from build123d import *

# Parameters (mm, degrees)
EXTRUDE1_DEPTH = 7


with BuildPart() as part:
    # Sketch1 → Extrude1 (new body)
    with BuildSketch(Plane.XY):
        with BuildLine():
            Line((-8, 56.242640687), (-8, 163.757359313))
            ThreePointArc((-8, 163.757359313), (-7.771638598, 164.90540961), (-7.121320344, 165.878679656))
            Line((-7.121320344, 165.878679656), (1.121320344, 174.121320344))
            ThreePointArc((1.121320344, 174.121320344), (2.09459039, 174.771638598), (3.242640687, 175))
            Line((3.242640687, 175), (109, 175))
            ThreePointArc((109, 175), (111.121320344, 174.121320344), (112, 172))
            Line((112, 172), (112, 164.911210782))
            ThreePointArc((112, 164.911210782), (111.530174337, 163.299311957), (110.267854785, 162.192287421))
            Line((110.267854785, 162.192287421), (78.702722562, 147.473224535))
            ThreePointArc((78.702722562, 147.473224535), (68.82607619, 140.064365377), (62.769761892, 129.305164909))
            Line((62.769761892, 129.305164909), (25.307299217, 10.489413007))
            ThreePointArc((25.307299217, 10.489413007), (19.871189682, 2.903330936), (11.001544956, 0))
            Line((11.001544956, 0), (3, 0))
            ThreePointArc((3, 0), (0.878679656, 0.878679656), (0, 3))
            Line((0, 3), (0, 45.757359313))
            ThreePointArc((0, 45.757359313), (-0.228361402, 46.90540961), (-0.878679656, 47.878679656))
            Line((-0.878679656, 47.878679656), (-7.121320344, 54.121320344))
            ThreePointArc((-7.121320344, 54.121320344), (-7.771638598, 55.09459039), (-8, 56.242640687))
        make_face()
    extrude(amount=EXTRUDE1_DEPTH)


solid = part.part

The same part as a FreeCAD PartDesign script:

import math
import FreeCAD as App
import Part
import Sketcher
Q = App.Units.Quantity

doc = App.newDocument("Part")
body = doc.addObject("PartDesign::Body", "Body")

sketch1 = body.newObject("Sketcher::SketchObject", "Sketch")
sketch1.AttachmentSupport = (doc.getObject("XY_Plane"), [""])
sketch1.MapMode = "FlatFace"
sketch1.addGeometry(Part.LineSegment(App.Vector(-8, 163.8, 0), App.Vector(-8, 56.2, 0)), False)
sketch1.addGeometry(Part.ArcOfCircle(Part.Circle(App.Vector(-5, 56.2, 0), App.Vector(0, 0, 1), 3), math.radians(180), math.radians(225)), False)
sketch1.addGeometry(Part.LineSegment(App.Vector(-7.1, 54.1, 0), App.Vector(-0.9, 47.9, 0)), False)
sketch1.addGeometry(Part.ArcOfCircle(Part.Circle(App.Vector(-3, 45.8, 0), App.Vector(0, 0, 1), 3), math.radians(0), math.radians(45)), False)
sketch1.addGeometry(Part.LineSegment(App.Vector(0, 45.8, 0), App.Vector(0, 3, 0)), False)
sketch1.addGeometry(Part.ArcOfCircle(Part.Circle(App.Vector(3, 3, 0), App.Vector(0, 0, 1), 3), math.radians(180), math.radians(270)), False)
sketch1.addGeometry(Part.LineSegment(App.Vector(3, 0, 0), App.Vector(11, 0, 0)), False)
sketch1.addGeometry(Part.ArcOfCircle(Part.Circle(App.Vector(11, 15, 0), App.Vector(0, 0, 1), 15), math.radians(-90), math.radians(-17)), False)
sketch1.addGeometry(Part.LineSegment(App.Vector(25.3, 10.5, 0), App.Vector(62.8, 129.3, 0)), False)
sketch1.addGeometry(Part.ArcOfCircle(Part.Circle(App.Vector(91.4, 120.3, 0), App.Vector(0, 0, 1), 30), math.radians(115), math.radians(163)), False)
sketch1.addGeometry(Part.LineSegment(App.Vector(78.7, 147.5, 0), App.Vector(110.3, 162.2, 0)), False)
sketch1.addGeometry(Part.ArcOfCircle(Part.Circle(App.Vector(109, 164.9, 0), App.Vector(0, 0, 1), 3), math.radians(-65), math.radians(0)), False)
sketch1.addGeometry(Part.LineSegment(App.Vector(112, 164.9, 0), App.Vector(112, 172, 0)), False)
sketch1.addGeometry(Part.ArcOfCircle(Part.Circle(App.Vector(109, 172, 0), App.Vector(0, 0, 1), 3), math.radians(0), math.radians(90)), False)
sketch1.addGeometry(Part.LineSegment(App.Vector(109, 175, 0), App.Vector(3.2, 175, 0)), False)
sketch1.addGeometry(Part.ArcOfCircle(Part.Circle(App.Vector(3.2, 172, 0), App.Vector(0, 0, 1), 3), math.radians(90), math.radians(135)), False)
sketch1.addGeometry(Part.LineSegment(App.Vector(1.1, 174.1, 0), App.Vector(-7.1, 165.9, 0)), False)
sketch1.addGeometry(Part.ArcOfCircle(Part.Circle(App.Vector(-5, 163.8, 0), App.Vector(0, 0, 1), 3), math.radians(135), math.radians(180)), False)
sketch1.addConstraint(Sketcher.Constraint("Tangent", 0, 2, 1, 1))
sketch1.addConstraint(Sketcher.Constraint("Tangent", 1, 2, 2, 1))
sketch1.addConstraint(Sketcher.Constraint("Tangent", 2, 2, 3, 2))
sketch1.addConstraint(Sketcher.Constraint("Tangent", 3, 1, 4, 1))
sketch1.addConstraint(Sketcher.Constraint("Tangent", 4, 2, 5, 1))
sketch1.addConstraint(Sketcher.Constraint("Tangent", 5, 2, 6, 1))
sketch1.addConstraint(Sketcher.Constraint("Tangent", 6, 2, 7, 1))
sketch1.addConstraint(Sketcher.Constraint("Tangent", 7, 2, 8, 1))
sketch1.addConstraint(Sketcher.Constraint("Tangent", 8, 2, 9, 2))
sketch1.addConstraint(Sketcher.Constraint("Tangent", 9, 1, 10, 1))
sketch1.addConstraint(Sketcher.Constraint("Tangent", 10, 2, 11, 1))
sketch1.addConstraint(Sketcher.Constraint("Tangent", 11, 2, 12, 1))
sketch1.addConstraint(Sketcher.Constraint("Tangent", 12, 2, 13, 1))
sketch1.addConstraint(Sketcher.Constraint("Tangent", 13, 2, 14, 1))
sketch1.addConstraint(Sketcher.Constraint("Tangent", 14, 2, 15, 1))
sketch1.addConstraint(Sketcher.Constraint("Tangent", 15, 2, 16, 1))
sketch1.addConstraint(Sketcher.Constraint("Tangent", 16, 2, 17, 1))
sketch1.addConstraint(Sketcher.Constraint("Tangent", 17, 2, 0, 1))
sketch1.addConstraint(Sketcher.Constraint("Vertical", 0))
sketch1.addConstraint(Sketcher.Constraint("Vertical", 4))
sketch1.addConstraint(Sketcher.Constraint("Horizontal", 6))
sketch1.addConstraint(Sketcher.Constraint("Vertical", 12))
sketch1.addConstraint(Sketcher.Constraint("Horizontal", 14))
sketch1.addConstraint(Sketcher.Constraint("Equal", 1, 3))
sketch1.addConstraint(Sketcher.Constraint("Equal", 3, 5))
sketch1.addConstraint(Sketcher.Constraint("Equal", 5, 11))
sketch1.addConstraint(Sketcher.Constraint("Equal", 11, 13))
sketch1.addConstraint(Sketcher.Constraint("Equal", 13, 15))
sketch1.addConstraint(Sketcher.Constraint("Equal", 15, 17))
sketch1.addConstraint(Sketcher.Constraint("PointOnObject", 3, 1, -2))
sketch1.addConstraint(Sketcher.Constraint("PointOnObject", 5, 2, -1))
sketch1.addConstraint(Sketcher.Constraint("Perpendicular", 2, 16))
sketch1.addConstraint(Sketcher.Constraint("Vertical", 1, 2, 16, 2))
sketch1.addConstraint(Sketcher.Constraint("Radius", 1, 3.0))
sketch1.addConstraint(Sketcher.Constraint("Radius", 7, 15.0))
sketch1.addConstraint(Sketcher.Constraint("Radius", 9, 30.0))
sketch1.addConstraint(Sketcher.Constraint("Angle", 10, Q("25 deg")))
sketch1.addConstraint(Sketcher.Constraint("DistanceX", 1, 3, -1, 1, 5.0))
sketch1.addConstraint(Sketcher.Constraint("DistanceX", -1, 1, 11, 3, 109.0))
sketch1.addConstraint(Sketcher.Constraint("DistanceY", -1, 1, 13, 3, 172.0))
sketch1.addConstraint(Sketcher.Constraint("Angle", 8, Q("72.5 deg")))
sketch1.addConstraint(Sketcher.Constraint("DistanceX", 14, 2, 14, 1, 105.757359))
sketch1.addConstraint(Sketcher.Constraint("DistanceY", 0, 2, 0, 1, 107.514719))
sketch1.addConstraint(Sketcher.Constraint("DistanceY", 12, 1, 12, 2, 7.088789))
sketch1.addConstraint(Sketcher.Constraint("DistanceX", -1, 1, 7, 2, 25.307299))
pad1 = body.newObject("PartDesign::Pad", "Pad")
pad1.Profile = sketch1
pad1.Length = 7

doc.recompute()
